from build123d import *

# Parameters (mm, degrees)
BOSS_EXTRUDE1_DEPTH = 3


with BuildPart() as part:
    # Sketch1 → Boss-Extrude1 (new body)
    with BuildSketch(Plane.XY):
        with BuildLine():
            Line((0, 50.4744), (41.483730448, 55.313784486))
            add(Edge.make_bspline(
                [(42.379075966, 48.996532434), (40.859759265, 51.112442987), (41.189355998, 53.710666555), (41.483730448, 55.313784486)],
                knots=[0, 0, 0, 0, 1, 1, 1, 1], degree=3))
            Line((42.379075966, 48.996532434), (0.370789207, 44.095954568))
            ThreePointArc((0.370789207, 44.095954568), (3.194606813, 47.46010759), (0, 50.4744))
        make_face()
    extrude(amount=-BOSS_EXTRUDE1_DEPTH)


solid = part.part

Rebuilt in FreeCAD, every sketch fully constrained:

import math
import FreeCAD as App
import Part
import Sketcher

V = App.Vector
Q = App.Units.Quantity

doc = App.newDocument("Part")
body = doc.addObject("PartDesign::Body", "Body")

sketch1 = doc.addObject("Sketcher::SketchObject", "Sketch")
body.addObject(sketch1)
sketch1.AttachmentSupport = (doc.XY_Plane, [""])
sketch1.MapMode = "FlatFace"
sketch1.addGeometry([
    Part.LineSegment(V(41.48373, 55.313784, 0), V(0, 50.4744, 0)),
    Part.ArcOfCircle(Part.Circle(V(0, 47.2744, 0), V(0, 0, 1), 3.2), math.radians(-83.346098), math.radians(90)),
    Part.LineSegment(V(0.370789, 44.095955, 0), V(42.379076, 48.996532, 0)),
    Part.BSplineCurve([V(42.379076, 48.996532, 0), V(40.859759, 51.112443, 0), V(41.189356, 53.710667, 0), V(41.48373, 55.313784, 0)], [4, 4], [0, 1], False, 3, [1, 1, 1, 1], False),
], False)
sketch1.addConstraint([
    Sketcher.Constraint("Block", 3),
    Sketcher.Constraint("Coincident", 0, 2, 1, 2),
    Sketcher.Constraint("Coincident", 1, 1, 2, 1),
    Sketcher.Constraint("Coincident", 2, 2, 3, 1),
    Sketcher.Constraint("Coincident", 3, 2, 0, 1),
    Sketcher.Constraint("PointOnObject", 1, 3, -2),
    Sketcher.Constraint("PointOnObject", 0, 2, -2),
    Sketcher.Constraint("Radius", 1, Q("3.2 mm")),
    Sketcher.Constraint("DistanceY", -1, 1, 1, 3, Q("47.2744 mm")),
    Sketcher.Constraint("DistanceX", -1, 1, 1, 1, Q("0.370789 mm")),
])
pad1 = doc.addObject("PartDesign::Pad", "Pad")
body.addObject(pad1)
pad1.Profile = sketch1
pad1.Length = 3
pad1.Reversed = True

doc.recompute()
